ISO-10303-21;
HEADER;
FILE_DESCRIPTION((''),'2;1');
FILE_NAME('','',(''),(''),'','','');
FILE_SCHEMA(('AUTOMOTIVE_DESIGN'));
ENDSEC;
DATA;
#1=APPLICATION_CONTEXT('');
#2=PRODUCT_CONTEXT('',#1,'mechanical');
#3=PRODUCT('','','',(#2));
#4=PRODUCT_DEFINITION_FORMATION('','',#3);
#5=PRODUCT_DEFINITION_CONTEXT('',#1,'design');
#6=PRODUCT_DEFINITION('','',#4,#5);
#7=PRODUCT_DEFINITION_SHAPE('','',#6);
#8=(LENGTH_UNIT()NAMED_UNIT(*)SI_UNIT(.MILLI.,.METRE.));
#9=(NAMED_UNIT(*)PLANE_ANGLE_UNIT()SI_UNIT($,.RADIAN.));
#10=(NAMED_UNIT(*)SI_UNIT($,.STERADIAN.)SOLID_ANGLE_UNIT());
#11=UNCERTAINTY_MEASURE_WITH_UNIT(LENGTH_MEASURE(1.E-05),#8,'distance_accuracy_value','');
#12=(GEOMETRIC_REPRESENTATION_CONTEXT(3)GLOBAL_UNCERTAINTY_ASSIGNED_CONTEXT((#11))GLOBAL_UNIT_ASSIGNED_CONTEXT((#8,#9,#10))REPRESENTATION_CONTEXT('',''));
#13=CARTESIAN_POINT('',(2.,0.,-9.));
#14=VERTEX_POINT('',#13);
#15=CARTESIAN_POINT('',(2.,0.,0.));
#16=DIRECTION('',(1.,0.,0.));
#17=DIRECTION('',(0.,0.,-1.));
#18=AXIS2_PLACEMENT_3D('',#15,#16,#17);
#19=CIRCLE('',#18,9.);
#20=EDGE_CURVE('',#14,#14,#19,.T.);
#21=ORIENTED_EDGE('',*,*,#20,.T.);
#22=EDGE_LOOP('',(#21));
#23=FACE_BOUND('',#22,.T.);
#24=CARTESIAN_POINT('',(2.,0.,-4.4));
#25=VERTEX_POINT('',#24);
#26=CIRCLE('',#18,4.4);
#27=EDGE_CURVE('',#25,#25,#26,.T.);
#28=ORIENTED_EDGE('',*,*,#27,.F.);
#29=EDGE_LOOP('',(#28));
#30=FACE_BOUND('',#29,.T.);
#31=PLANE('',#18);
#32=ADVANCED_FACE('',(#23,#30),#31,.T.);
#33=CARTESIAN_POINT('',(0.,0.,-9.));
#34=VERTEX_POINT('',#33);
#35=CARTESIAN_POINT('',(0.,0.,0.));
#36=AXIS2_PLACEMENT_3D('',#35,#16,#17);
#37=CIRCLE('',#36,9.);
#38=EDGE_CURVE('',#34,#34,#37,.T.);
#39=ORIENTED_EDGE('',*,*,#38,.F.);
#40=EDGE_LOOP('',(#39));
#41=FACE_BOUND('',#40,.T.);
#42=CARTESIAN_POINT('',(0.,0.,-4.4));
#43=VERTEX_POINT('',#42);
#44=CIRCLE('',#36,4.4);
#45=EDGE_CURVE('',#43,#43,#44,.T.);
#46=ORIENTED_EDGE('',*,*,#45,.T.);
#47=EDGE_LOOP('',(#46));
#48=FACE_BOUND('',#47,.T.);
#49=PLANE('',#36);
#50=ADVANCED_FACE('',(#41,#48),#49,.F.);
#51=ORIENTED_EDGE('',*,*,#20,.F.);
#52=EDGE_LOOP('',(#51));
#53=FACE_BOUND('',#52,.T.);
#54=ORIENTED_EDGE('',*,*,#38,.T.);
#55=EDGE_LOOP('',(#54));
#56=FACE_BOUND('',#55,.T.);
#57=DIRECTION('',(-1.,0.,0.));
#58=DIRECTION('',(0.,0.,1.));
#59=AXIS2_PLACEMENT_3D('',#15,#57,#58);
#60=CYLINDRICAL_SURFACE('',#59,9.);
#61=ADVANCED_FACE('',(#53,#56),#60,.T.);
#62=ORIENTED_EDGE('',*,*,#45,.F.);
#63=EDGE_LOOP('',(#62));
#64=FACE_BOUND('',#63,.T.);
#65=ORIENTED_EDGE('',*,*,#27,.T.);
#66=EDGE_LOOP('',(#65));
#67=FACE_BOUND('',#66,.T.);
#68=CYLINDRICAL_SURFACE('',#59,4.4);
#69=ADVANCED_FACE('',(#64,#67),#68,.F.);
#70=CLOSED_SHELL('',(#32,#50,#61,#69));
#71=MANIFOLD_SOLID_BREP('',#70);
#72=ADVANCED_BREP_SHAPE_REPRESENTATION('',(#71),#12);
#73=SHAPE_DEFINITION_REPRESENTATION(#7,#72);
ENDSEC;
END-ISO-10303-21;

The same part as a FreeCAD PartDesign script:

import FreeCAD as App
import Part
import Sketcher
from FreeCAD import Vector
Q = App.Units.Quantity

doc = App.newDocument("Part")
body = doc.addObject("PartDesign::Body", "Body")

# Sketch on YZ plane
sketch1 = body.newObject("Sketcher::SketchObject", "Sketch")
sketch1.AttachmentSupport = (doc.getObject("YZ_Plane"), [""])
sketch1.MapMode = "FlatFace"
sketch1.addGeometry(Part.Circle(Vector(0, 0, 0), Vector(0, 0, 1), 9), False)
sketch1.addGeometry(Part.Circle(Vector(0, 0, 0), Vector(0, 0, 1), 4.4), False)
sketch1.addConstraint(Sketcher.Constraint("Coincident", 0, 3, -1, 1))
sketch1.addConstraint(Sketcher.Constraint("Coincident", 1, 3, -1, 1))
sketch1.addConstraint(Sketcher.Constraint("Diameter", 0, Q("18 mm")))
sketch1.addConstraint(Sketcher.Constraint("Diameter", 1, Q("8.8 mm")))
pad1 = body.newObject("PartDesign::Pad", "Pad")
pad1.Profile = sketch1
pad1.Length = 2

doc.recompute()
